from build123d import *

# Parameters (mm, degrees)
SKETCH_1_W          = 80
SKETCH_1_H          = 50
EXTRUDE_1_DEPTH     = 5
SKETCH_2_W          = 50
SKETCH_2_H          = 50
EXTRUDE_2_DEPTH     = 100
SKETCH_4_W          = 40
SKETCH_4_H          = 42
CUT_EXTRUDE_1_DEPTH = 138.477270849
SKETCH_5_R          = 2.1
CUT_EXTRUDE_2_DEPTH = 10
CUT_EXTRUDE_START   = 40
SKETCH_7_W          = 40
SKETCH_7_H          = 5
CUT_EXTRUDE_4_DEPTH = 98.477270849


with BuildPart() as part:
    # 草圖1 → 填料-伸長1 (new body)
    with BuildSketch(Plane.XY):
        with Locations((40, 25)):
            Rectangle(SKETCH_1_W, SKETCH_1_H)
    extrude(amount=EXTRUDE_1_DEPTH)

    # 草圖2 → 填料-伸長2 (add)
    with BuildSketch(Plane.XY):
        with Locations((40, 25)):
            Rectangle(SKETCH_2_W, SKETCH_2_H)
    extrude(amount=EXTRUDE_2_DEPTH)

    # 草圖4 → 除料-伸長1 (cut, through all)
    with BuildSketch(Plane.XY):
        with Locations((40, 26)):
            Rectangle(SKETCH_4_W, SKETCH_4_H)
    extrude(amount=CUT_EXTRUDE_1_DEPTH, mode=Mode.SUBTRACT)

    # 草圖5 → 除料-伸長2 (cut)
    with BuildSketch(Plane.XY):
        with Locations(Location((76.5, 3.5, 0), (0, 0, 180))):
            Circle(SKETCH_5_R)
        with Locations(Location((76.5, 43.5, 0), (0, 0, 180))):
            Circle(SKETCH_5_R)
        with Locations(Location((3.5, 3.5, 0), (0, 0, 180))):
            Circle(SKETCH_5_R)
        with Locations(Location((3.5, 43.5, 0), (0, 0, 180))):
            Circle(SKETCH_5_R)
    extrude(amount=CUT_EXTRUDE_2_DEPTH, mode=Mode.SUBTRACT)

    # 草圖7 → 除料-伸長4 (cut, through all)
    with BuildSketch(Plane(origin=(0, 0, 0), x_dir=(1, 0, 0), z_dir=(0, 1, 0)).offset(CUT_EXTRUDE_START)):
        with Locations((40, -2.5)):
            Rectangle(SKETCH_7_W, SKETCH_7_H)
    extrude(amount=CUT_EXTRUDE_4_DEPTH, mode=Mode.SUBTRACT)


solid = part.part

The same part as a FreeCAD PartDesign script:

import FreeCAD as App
import Part
import Sketcher


def add_polygon(sketch, points):
    """Adds a closed chain of lines whose ends are joined by coincident constraints."""
    first, n = sketch.GeometryCount, len(points)
    for a, b in zip(points, points[1:] + points[:1]):
        sketch.addGeometry(Part.LineSegment(App.Vector(*a, 0), App.Vector(*b, 0)), False)
    for i in range(n):
        sketch.addConstraint(Sketcher.Constraint("Coincident", first + i, 2, first + (i + 1) % n, 1))

doc = App.newDocument("Part")
params = doc.addObject("Spreadsheet::Sheet", "Params")
for row, (alias, value) in enumerate([
    ("sketch1_width", "80 mm"),
    ("sketch1_height", "50 mm"),
    ("pad1_length", "5 mm"),
    ("sketch2_width", "50 mm"),
    ("pad2_length", "100 mm"),
    ("sketch3_width", "40 mm"),
    ("sketch3_height", "42 mm"),
    ("sketch4_diameter", "4.2 mm"),
    ("pocket2_length", "10 mm"),
    ("sketch5_width", "40 mm"),
    ("sketch5_height", "5 mm"),
], start=1):
    params.set(f"A{row}", alias)
    params.set(f"B{row}", "=" + value)
    params.setAlias(f"B{row}", alias)

body = doc.addObject("PartDesign::Body", "Body")

# Sketch on XY plane
sketch1 = body.newObject("Sketcher::SketchObject", "Sketch")
sketch1.AttachmentSupport = (doc.getObject("XY_Plane"), [""])
sketch1.MapMode = "FlatFace"
add_polygon(sketch1, [(0, 50), (0, 0), (80, 0), (80, 50)])  # lines 0-3
sketch1.addConstraint([
    Sketcher.Constraint("Vertical", 0),
    Sketcher.Constraint("Horizontal", 1),
    Sketcher.Constraint("Vertical", 2),
    Sketcher.Constraint("Horizontal", 3),
    Sketcher.Constraint("Coincident", 0, 2, -1, 1),
    Sketcher.Constraint("DistanceX", 1, 1, 1, 2, 80.0),
    Sketcher.Constraint("DistanceY", 0, 2, 0, 1, 50.0),
])
sketch1.setExpression("Constraints[9]", "Params.sketch1_width")
sketch1.setExpression("Constraints[10]", "Params.sketch1_height")
pad1 = body.newObject("PartDesign::Pad", "Pad")
pad1.Profile = sketch1
pad1.setExpression("Length", "Params.pad1_length")

# Sketch on XY plane
sketch2 = body.newObject("Sketcher::SketchObject", "Sketch001")
sketch2.AttachmentSupport = (doc.getObject("XY_Plane"), [""])
sketch2.MapMode = "FlatFace"
add_polygon(sketch2, [(15, 50), (15, 0), (65, 0), (65, 50)])  # lines 0-3
sketch2.addConstraint([
    Sketcher.Constraint("Vertical", 0),
    Sketcher.Constraint("Horizontal", 1),
    Sketcher.Constraint("Vertical", 2),
    Sketcher.Constraint("Horizontal", 3),
    Sketcher.Constraint("PointOnObject", 0, 2, -1),
    Sketcher.Constraint("Equal", 3, 0),
    Sketcher.Constraint("DistanceX", 1, 1, 1, 2, 50.0),
    Sketcher.Constraint("DistanceX", -1, 1, 0, 2, 15.0),
])
sketch2.setExpression("Constraints[10]", "Params.sketch2_width")
pad2 = body.newObject("PartDesign::Pad", "Pad001")
pad2.Profile = sketch2
pad2.setExpression("Length", "Params.pad2_length")

# Sketch on XY plane
sketch3 = body.newObject("Sketcher::SketchObject", "Sketch002")
sketch3.AttachmentSupport = (doc.getObject("XY_Plane"), [""])
sketch3.MapMode = "FlatFace"
add_polygon(sketch3, [(20, 47), (20, 5), (60, 5), (60, 47)])  # lines 0-3
sketch3.addConstraint([
    Sketcher.Constraint("Vertical", 0),
    Sketcher.Constraint("Horizontal", 1),
    Sketcher.Constraint("Vertical", 2),
    Sketcher.Constraint("Horizontal", 3),
    Sketcher.Constraint("DistanceX", 1, 1, 1, 2, 40.0),
    Sketcher.Constraint("DistanceY", 0, 2, 0, 1, 42.0),
    Sketcher.Constraint("DistanceX", -1, 1, 0, 2, 20.0),
    Sketcher.Constraint("DistanceY", -1, 1, 0, 2, 5.0),
])
sketch3.setExpression("Constraints[8]", "Params.sketch3_width")
sketch3.setExpression("Constraints[9]", "Params.sketch3_height")
pocket1 = body.newObject("PartDesign::Pocket", "Pocket")
pocket1.Profile = sketch3
pocket1.Type = "ThroughAll"
pocket1.Reversed = True

# Sketch on XY plane
sketch4 = body.newObject("Sketcher::SketchObject", "Sketch003")
sketch4.AttachmentSupport = (doc.getObject("XY_Plane"), [""])
sketch4.MapMode = "FlatFace"
sketch4.addGeometry([
    Part.Circle(App.Vector(76.5, 3.5, 0), App.Vector(0, 0, 1), 2.1),
    Part.Circle(App.Vector(76.5, 43.5, 0), App.Vector(0, 0, 1), 2.1),
    Part.Circle(App.Vector(3.5, 3.5, 0), App.Vector(0, 0, 1), 2.1),
    Part.Circle(App.Vector(3.5, 43.5, 0), App.Vector(0, 0, 1), 2.1),
], False)
sketch4.addConstraint([
    Sketcher.Constraint("Equal", 0, 1),
    Sketcher.Constraint("Equal", 1, 2),
    Sketcher.Constraint("Equal", 2, 3),
    Sketcher.Constraint("Horizontal", 0, 3, 2, 3),
    Sketcher.Constraint("Horizontal", 1, 3, 3, 3),
    Sketcher.Constraint("Vertical", 0, 3, 1, 3),
    Sketcher.Constraint("Vertical", 2, 3, 3, 3),
    Sketcher.Constraint("Diameter", 0, 4.2),
    Sketcher.Constraint("DistanceY", 0, 3, 1, 3, 40.0),
    Sketcher.Constraint("DistanceX", 2, 3, 0, 3, 73.0),
    Sketcher.Constraint("DistanceX", -1, 1, 0, 3, 76.5),
    Sketcher.Constraint("DistanceY", -1, 1, 0, 3, 3.5),
])
sketch4.setExpression("Constraints[7]", "Params.sketch4_diameter")
pocket2 = body.newObject("PartDesign::Pocket", "Pocket001")
pocket2.Profile = sketch4
pocket2.setExpression("Length", "Params.pocket2_length")
pocket2.Reversed = True

# Sketch on XZ plane
sketch5 = body.newObject("Sketcher::SketchObject", "Sketch004")
sketch5.AttachmentSupport = (doc.getObject("XZ_Plane"), [""])
sketch5.MapMode = "FlatFace"
sketch5.AttachmentOffset = App.Placement(App.Vector(0, 0, -40), App.Rotation())
add_polygon(sketch5, [(20, 0), (20, 5), (60, 5), (60, 0)])  # lines 0-3
sketch5.addConstraint([
    Sketcher.Constraint("Vertical", 0),
    Sketcher.Constraint("Horizontal", 1),
    Sketcher.Constraint("Vertical", 2),
    Sketcher.Constraint("Horizontal", 3),
    Sketcher.Constraint("PointOnObject", 2, 2, -1),
    Sketcher.Constraint("DistanceX", 1, 1, 1, 2, 40.0),
    Sketcher.Constraint("DistanceY", 0, 1, 0, 2, 5.0),
    Sketcher.Constraint("DistanceX", -1, 1, 0, 2, 20.0),
])
sketch5.setExpression("Constraints[9]", "Params.sketch5_width")
sketch5.setExpression("Constraints[10]", "Params.sketch5_height")
pocket3 = body.newObject("PartDesign::Pocket", "Pocket002")
pocket3.Profile = sketch5
pocket3.Type = "ThroughAll"

doc.recompute()
